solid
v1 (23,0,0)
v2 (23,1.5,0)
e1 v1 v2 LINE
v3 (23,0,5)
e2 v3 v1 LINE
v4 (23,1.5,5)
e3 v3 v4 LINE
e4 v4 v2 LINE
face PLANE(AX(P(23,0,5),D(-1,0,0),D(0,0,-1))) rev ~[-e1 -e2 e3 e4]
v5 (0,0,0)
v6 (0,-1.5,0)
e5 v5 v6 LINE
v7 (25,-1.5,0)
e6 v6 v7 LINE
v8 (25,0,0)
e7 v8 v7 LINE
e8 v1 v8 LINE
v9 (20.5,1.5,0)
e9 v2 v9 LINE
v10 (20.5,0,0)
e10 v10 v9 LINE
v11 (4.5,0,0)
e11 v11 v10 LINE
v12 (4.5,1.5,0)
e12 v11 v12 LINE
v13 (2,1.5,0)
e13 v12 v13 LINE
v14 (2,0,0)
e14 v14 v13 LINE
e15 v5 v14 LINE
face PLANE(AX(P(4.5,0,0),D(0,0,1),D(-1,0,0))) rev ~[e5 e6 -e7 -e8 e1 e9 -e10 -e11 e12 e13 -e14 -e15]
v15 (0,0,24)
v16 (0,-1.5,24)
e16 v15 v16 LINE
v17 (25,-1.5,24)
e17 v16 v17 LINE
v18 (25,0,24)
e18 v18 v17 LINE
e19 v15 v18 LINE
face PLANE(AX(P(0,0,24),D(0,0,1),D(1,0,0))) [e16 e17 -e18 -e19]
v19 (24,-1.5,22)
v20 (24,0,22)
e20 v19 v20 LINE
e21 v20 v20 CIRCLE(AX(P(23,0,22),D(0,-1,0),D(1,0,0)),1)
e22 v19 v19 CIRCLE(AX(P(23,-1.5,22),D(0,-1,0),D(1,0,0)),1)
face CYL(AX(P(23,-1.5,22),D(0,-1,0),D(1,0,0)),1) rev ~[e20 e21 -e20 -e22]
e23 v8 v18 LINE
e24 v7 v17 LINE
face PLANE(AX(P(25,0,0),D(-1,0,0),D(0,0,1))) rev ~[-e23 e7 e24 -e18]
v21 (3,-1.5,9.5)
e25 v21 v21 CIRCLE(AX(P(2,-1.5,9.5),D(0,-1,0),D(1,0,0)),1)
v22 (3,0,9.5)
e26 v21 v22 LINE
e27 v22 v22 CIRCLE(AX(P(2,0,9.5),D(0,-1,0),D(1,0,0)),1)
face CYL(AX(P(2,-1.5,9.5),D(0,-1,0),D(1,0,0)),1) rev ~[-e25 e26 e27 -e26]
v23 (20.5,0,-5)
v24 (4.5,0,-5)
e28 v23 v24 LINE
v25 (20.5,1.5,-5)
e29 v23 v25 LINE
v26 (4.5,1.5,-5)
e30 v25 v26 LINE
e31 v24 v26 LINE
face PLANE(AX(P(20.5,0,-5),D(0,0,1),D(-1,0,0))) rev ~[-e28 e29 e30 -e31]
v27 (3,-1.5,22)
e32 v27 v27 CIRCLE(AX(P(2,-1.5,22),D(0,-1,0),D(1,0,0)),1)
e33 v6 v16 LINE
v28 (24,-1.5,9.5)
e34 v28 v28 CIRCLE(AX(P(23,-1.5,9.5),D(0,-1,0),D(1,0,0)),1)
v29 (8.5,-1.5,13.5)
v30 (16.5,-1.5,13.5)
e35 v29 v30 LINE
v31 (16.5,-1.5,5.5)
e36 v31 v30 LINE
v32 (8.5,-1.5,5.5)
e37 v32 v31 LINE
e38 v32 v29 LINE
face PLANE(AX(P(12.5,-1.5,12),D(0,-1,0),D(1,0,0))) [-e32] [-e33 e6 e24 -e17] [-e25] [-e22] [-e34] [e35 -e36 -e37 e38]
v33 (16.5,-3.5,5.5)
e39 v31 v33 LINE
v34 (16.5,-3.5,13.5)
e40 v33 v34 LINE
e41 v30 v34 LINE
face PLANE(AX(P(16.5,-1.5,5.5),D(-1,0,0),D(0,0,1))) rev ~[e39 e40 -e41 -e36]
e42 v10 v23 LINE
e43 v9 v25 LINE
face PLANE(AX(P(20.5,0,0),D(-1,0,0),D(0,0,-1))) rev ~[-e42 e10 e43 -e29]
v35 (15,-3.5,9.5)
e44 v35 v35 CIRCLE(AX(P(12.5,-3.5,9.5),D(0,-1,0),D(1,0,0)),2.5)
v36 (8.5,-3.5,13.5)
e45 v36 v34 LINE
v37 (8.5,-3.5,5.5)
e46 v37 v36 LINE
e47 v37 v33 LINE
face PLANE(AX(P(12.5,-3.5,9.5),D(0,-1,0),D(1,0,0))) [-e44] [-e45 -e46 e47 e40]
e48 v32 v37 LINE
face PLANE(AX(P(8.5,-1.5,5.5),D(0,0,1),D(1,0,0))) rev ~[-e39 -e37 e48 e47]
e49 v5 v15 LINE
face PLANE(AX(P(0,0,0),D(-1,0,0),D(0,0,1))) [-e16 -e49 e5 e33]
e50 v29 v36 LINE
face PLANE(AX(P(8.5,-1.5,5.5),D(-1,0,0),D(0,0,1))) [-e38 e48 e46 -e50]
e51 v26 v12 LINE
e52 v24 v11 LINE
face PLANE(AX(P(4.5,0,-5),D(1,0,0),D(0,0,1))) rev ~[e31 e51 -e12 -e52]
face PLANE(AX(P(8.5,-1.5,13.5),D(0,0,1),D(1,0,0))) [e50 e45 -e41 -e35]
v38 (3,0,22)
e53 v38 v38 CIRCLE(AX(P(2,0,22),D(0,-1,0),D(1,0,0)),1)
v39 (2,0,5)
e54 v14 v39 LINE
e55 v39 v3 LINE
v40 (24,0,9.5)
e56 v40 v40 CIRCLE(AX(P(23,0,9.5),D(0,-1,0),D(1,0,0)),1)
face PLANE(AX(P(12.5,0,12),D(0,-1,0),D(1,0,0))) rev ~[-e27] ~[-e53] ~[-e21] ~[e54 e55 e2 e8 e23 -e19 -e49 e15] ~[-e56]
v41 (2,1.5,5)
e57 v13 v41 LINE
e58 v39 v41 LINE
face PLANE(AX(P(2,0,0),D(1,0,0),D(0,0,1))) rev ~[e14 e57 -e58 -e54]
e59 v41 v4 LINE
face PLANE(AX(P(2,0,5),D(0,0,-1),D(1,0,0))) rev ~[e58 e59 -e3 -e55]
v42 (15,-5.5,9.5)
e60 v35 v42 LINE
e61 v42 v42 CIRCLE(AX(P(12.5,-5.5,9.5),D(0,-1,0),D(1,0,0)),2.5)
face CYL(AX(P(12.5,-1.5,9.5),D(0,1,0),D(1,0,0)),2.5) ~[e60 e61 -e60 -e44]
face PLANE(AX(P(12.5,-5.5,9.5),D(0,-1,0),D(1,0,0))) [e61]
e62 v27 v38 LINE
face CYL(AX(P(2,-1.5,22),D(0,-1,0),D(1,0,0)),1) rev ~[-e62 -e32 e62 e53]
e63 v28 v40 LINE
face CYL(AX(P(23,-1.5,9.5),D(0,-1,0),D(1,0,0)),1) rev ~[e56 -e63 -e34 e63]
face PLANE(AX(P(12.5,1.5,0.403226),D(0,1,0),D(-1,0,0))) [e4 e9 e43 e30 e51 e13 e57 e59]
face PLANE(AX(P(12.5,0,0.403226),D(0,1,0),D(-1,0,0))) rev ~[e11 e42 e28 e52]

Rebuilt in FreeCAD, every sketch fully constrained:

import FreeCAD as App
import Part
import Sketcher

V = App.Vector
Q = App.Units.Quantity

doc = App.newDocument("Part")
body = doc.addObject("PartDesign::Body", "Body")

# Sketch on XZ plane
sketch1 = body.newObject("Sketcher::SketchObject", "Sketch")
sketch1.AttachmentSupport = (doc.getObject("XZ_Plane"), [""])
sketch1.MapMode = "FlatFace"
sketch1.addGeometry([
    Part.LineSegment(V(0, 24, 0), V(0, 0, 0)),
    Part.LineSegment(V(0, 0, 0), V(25, 0, 0)),
    Part.LineSegment(V(25, 0, 0), V(25, 24, 0)),
    Part.LineSegment(V(25, 24, 0), V(0, 24, 0)),
], False)
sketch1.addConstraint([
    Sketcher.Constraint("Coincident", 0, 2, 1, 1),
    Sketcher.Constraint("Coincident", 1, 2, 2, 1),
    Sketcher.Constraint("Coincident", 2, 2, 3, 1),
    Sketcher.Constraint("Coincident", 3, 2, 0, 1),
    Sketcher.Constraint("Vertical", 0),
    Sketcher.Constraint("Horizontal", 1),
    Sketcher.Constraint("Vertical", 2),
    Sketcher.Constraint("Horizontal", 3),
    Sketcher.Constraint("Coincident", 0, 2, -1, 1),
    Sketcher.Constraint("DistanceX", 1, 1, 1, 2, Q("25 mm")),
    Sketcher.Constraint("DistanceY", 0, 2, 0, 1, Q("24 mm")),
])
pad1 = body.newObject("PartDesign::Pad", "Pad")
pad1.Profile = sketch1
pad1.Length = 1.5

# Sketch on XZ plane
sketch2 = body.newObject("Sketcher::SketchObject", "Sketch001")
sketch2.AttachmentSupport = (doc.getObject("XZ_Plane"), [""])
sketch2.MapMode = "FlatFace"
sketch2.AttachmentOffset = App.Placement(V(0, 0, 1.5), App.Rotation())
sketch2.addGeometry([
    Part.Circle(V(2, 22, 0), V(0, 0, 1), 1),
    Part.Circle(V(2, 9.5, 0), V(0, 0, 1), 1),
    Part.Circle(V(23, 22, 0), V(0, 0, 1), 1),
    Part.Circle(V(23, 9.5, 0), V(0, 0, 1), 1),
], False)
sketch2.addConstraint([
    Sketcher.Constraint("Equal", 0, 1),
    Sketcher.Constraint("Equal", 1, 2),
    Sketcher.Constraint("Equal", 2, 3),
    Sketcher.Constraint("Horizontal", 0, 3, 2, 3),
    Sketcher.Constraint("Horizontal", 1, 3, 3, 3),
    Sketcher.Constraint("Vertical", 0, 3, 1, 3),
    Sketcher.Constraint("Vertical", 2, 3, 3, 3),
    Sketcher.Constraint("Diameter", 0, Q("2 mm")),
    Sketcher.Constraint("DistanceX", -1, 1, 0, 3, Q("2 mm")),
    Sketcher.Constraint("DistanceY", -1, 1, 0, 3, Q("22 mm")),
    Sketcher.Constraint("DistanceX", -1, 1, 2, 3, Q("23 mm")),
    Sketcher.Constraint("DistanceY", -1, 1, 1, 3, Q("9.5 mm")),
])
pocket1 = body.newObject("PartDesign::Pocket", "Pocket")
pocket1.Profile = sketch2
pocket1.Type = "ThroughAll"

# Sketch on XZ plane
sketch3 = body.newObject("Sketcher::SketchObject", "Sketch002")
sketch3.AttachmentSupport = (doc.getObject("XZ_Plane"), [""])
sketch3.MapMode = "FlatFace"
sketch3.AttachmentOffset = App.Placement(V(0, 0, 1.5), App.Rotation())
sketch3.addGeometry([
    Part.LineSegment(V(8.5, 13.5, 0), V(8.5, 5.5, 0)),  # 0
    Part.LineSegment(V(8.5, 5.5, 0), V(16.5, 5.5, 0)),  # 1
    Part.LineSegment(V(16.5, 5.5, 0), V(16.5, 13.5, 0)),  # 2
    Part.LineSegment(V(16.5, 13.5, 0), V(8.5, 13.5, 0)),  # 3
    Part.Circle(V(12.5, 9.5, 0), V(0, 0, 1), 2.5),  # 4
], False)
sketch3.addConstraint([
    Sketcher.Constraint("Coincident", 0, 2, 1, 1),
    Sketcher.Constraint("Coincident", 1, 2, 2, 1),
    Sketcher.Constraint("Coincident", 2, 2, 3, 1),
    Sketcher.Constraint("Coincident", 3, 2, 0, 1),
    Sketcher.Constraint("Vertical", 0),
    Sketcher.Constraint("Horizontal", 1),
    Sketcher.Constraint("Vertical", 2),
    Sketcher.Constraint("Horizontal", 3),
    Sketcher.Constraint("Equal", 3, 0),
    Sketcher.Constraint("Diameter", 4, Q("5 mm")),
    Sketcher.Constraint("DistanceX", 1, 1, 1, 2, Q("8 mm")),
    Sketcher.Constraint("DistanceX", 0, 2, 4, 3, Q("4 mm")),
    Sketcher.Constraint("DistanceY", 0, 2, 4, 3, Q("4 mm")),
    Sketcher.Constraint("DistanceX", -1, 1, 4, 3, Q("12.5 mm")),
    Sketcher.Constraint("DistanceY", -1, 1, 4, 3, Q("9.5 mm")),
])
pad2 = body.newObject("PartDesign::Pad", "Pad001")
pad2.Profile = sketch3
pad2.Length = 2

# Sketch on XZ plane
sketch4 = body.newObject("Sketcher::SketchObject", "Sketch003")
sketch4.AttachmentSupport = (doc.getObject("XZ_Plane"), [""])
sketch4.MapMode = "FlatFace"
sketch4.AttachmentOffset = App.Placement(V(0, 0, 1.5), App.Rotation())
sketch4.addGeometry(Part.Circle(V(12.5, 9.5, 0), V(0, 0, 1), 2.5), False)
sketch4.addConstraint([
    Sketcher.Constraint("Diameter", 0, Q("5 mm")),
    Sketcher.Constraint("DistanceX", -1, 1, 0, 3, Q("12.5 mm")),
    Sketcher.Constraint("DistanceY", -1, 1, 0, 3, Q("9.5 mm")),
])
pad3 = body.newObject("PartDesign::Pad", "Pad002")
pad3.Profile = sketch4
pad3.Length = 4

# Sketch on XZ plane
sketch5 = body.newObject("Sketcher::SketchObject", "Sketch004")
sketch5.AttachmentSupport = (doc.getObject("XZ_Plane"), [""])
sketch5.MapMode = "FlatFace"
sketch5.addGeometry([
    Part.LineSegment(V(2, 0, 0), V(2, 5, 0)),  # 0
    Part.LineSegment(V(2, 5, 0), V(23, 5, 0)),  # 1
    Part.LineSegment(V(23, 5, 0), V(23, 0, 0)),  # 2
    Part.LineSegment(V(23, 0, 0), V(20.5, 0, 0)),  # 3
    Part.LineSegment(V(20.5, 0, 0), V(20.5, -5, 0)),  # 4
    Part.LineSegment(V(20.5, -5, 0), V(4.5, -5, 0)),  # 5
    Part.LineSegment(V(4.5, -5, 0), V(4.5, 0, 0)),  # 6
    Part.LineSegment(V(4.5, 0, 0), V(2, 0, 0)),  # 7
], False)
sketch5.addConstraint([
    Sketcher.Constraint("Coincident", 0, 2, 1, 1),
    Sketcher.Constraint("Coincident", 1, 2, 2, 1),
    Sketcher.Constraint("Coincident", 2, 2, 3, 1),
    Sketcher.Constraint("Coincident", 3, 2, 4, 1),
    Sketcher.Constraint("Coincident", 4, 2, 5, 1),
    Sketcher.Constraint("Coincident", 5, 2, 6, 1),
    Sketcher.Constraint("Coincident", 6, 2, 7, 1),
    Sketcher.Constraint("Coincident", 7, 2, 0, 1),
    Sketcher.Constraint("Vertical", 0),
    Sketcher.Constraint("Horizontal", 1),
    Sketcher.Constraint("Vertical", 2),
    Sketcher.Constraint("Horizontal", 3),
    Sketcher.Constraint("Vertical", 4),
    Sketcher.Constraint("Horizontal", 5),
    Sketcher.Constraint("Vertical", 6),
    Sketcher.Constraint("Horizontal", 7),
    Sketcher.Constraint("PointOnObject", 2, 2, -1),
    Sketcher.Constraint("PointOnObject", 6, 2, -1),
    Sketcher.Constraint("Equal", 3, 7),
    Sketcher.Constraint("Equal", 2, 4),
    Sketcher.Constraint("DistanceX", 1, 1, 1, 2, Q("21 mm")),
    Sketcher.Constraint("DistanceX", 5, 2, 5, 1, Q("16 mm")),
    Sketcher.Constraint("DistanceY", 0, 1, 0, 2, Q("5 mm")),
    Sketcher.Constraint("DistanceX", -1, 1, 0, 2, Q("2 mm")),
])
pad4 = body.newObject("PartDesign::Pad", "Pad003")
pad4.Profile = sketch5
pad4.Length = 1.5
pad4.Reversed = True

doc.recompute()
